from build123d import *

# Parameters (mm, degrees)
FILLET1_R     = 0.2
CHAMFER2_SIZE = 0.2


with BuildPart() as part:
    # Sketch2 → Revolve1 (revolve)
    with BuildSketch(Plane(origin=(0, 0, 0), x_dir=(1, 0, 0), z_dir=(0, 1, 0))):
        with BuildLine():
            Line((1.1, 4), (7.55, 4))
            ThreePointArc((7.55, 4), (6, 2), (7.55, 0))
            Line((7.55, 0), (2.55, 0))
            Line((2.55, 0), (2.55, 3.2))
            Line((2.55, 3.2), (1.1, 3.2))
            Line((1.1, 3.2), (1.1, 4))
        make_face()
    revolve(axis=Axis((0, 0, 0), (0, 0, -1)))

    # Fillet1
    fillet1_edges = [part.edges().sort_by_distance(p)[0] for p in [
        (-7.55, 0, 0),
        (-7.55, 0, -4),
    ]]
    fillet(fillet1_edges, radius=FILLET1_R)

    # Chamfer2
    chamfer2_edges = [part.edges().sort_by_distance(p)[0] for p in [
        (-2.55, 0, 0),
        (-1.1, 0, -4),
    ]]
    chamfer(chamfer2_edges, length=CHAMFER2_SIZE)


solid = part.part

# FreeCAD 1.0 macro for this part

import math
import FreeCAD as App
import Part
import Sketcher
from FreeCAD import Vector
Q = App.Units.Quantity


def edges_at(feature, points):
    """Names of the edges that pass closest to the given points."""
    edges = feature.Shape.Edges
    near = lambda p: min(range(len(edges)), key=lambda i: edges[i].distToShape(Part.Vertex(*p))[0])
    return sorted({f"Edge{near(p) + 1}" for p in points})

doc = App.newDocument("Part")
body = doc.addObject("PartDesign::Body", "Body")

sketch1 = doc.addObject("Sketcher::SketchObject", "Sketch")
body.addObject(sketch1)
sketch1.AttachmentSupport = (doc.XZ_Plane, [""])
sketch1.MapMode = "FlatFace"
sketch1.addGeometry(Part.LineSegment(Vector(7.5, -4, 0), Vector(1.1, -4, 0)), False)
sketch1.addGeometry(Part.LineSegment(Vector(1.1, -4, 0), Vector(1.1, -3.2, 0)), False)
sketch1.addGeometry(Part.LineSegment(Vector(1.1, -3.2, 0), Vector(2.5, -3.2, 0)), False)
sketch1.addGeometry(Part.LineSegment(Vector(2.5, -3.2, 0), Vector(2.5, 0, 0)), False)
sketch1.addGeometry(Part.LineSegment(Vector(2.5, 0, 0), Vector(7.5, 0, 0)), False)
sketch1.addGeometry(Part.ArcOfCircle(Part.Circle(Vector(8.1, -2, 0), Vector(0, 0, 1), 2.1), math.radians(104), math.radians(256)), False)
sketch1.addConstraint(Sketcher.Constraint("Coincident", 0, 2, 1, 1))
sketch1.addConstraint(Sketcher.Constraint("Coincident", 1, 2, 2, 1))
sketch1.addConstraint(Sketcher.Constraint("Coincident", 2, 2, 3, 1))
sketch1.addConstraint(Sketcher.Constraint("Coincident", 3, 2, 4, 1))
sketch1.addConstraint(Sketcher.Constraint("Coincident", 4, 2, 5, 1))
sketch1.addConstraint(Sketcher.Constraint("Coincident", 5, 2, 0, 1))
sketch1.addConstraint(Sketcher.Constraint("Horizontal", 0))
sketch1.addConstraint(Sketcher.Constraint("Vertical", 1))
sketch1.addConstraint(Sketcher.Constraint("Horizontal", 2))
sketch1.addConstraint(Sketcher.Constraint("Vertical", 3))
sketch1.addConstraint(Sketcher.Constraint("Horizontal", 4))
sketch1.addConstraint(Sketcher.Constraint("PointOnObject", 3, 2, -1))
sketch1.addConstraint(Sketcher.Constraint("Vertical", 4, 2, 5, 2))
sketch1.addConstraint(Sketcher.Constraint("DistanceX", 4, 1, 4, 2, Q("5 mm")))
sketch1.addConstraint(Sketcher.Constraint("DistanceY", 1, 1, 1, 2, Q("0.8 mm")))
sketch1.addConstraint(Sketcher.Constraint("DistanceY", 3, 1, 3, 2, Q("3.2 mm")))
sketch1.addConstraint(Sketcher.Constraint("DistanceX", 0, 2, 0, 1, Q("6.45 mm")))
sketch1.addConstraint(Sketcher.Constraint("DistanceX", -1, 1, 0, 2, Q("1.1 mm")))
sketch1.addConstraint(Sketcher.Constraint("Radius", 5, Q("2.065323 mm")))
revolution = doc.addObject("PartDesign::Revolution", "Revolution")
body.addObject(revolution)
revolution.Profile = sketch1
revolution.ReferenceAxis = (sketch1, ["V_Axis"])
revolution.Angle = 360
doc.recompute()

fillet = doc.addObject("PartDesign::Fillet", "Fillet")
body.addObject(fillet)
fillet.Base = (revolution, edges_at(revolution, [(-7.55, 0, 0), (-7.55, 0, -4)]))
fillet.Radius = 0.2
doc.recompute()

chamfer = doc.addObject("PartDesign::Chamfer", "Chamfer")
body.addObject(chamfer)
chamfer.Base = (fillet, edges_at(fillet, [(-2.55, 0, 0), (-1.1, 0, -4)]))
chamfer.Size = 0.2

doc.recompute()
